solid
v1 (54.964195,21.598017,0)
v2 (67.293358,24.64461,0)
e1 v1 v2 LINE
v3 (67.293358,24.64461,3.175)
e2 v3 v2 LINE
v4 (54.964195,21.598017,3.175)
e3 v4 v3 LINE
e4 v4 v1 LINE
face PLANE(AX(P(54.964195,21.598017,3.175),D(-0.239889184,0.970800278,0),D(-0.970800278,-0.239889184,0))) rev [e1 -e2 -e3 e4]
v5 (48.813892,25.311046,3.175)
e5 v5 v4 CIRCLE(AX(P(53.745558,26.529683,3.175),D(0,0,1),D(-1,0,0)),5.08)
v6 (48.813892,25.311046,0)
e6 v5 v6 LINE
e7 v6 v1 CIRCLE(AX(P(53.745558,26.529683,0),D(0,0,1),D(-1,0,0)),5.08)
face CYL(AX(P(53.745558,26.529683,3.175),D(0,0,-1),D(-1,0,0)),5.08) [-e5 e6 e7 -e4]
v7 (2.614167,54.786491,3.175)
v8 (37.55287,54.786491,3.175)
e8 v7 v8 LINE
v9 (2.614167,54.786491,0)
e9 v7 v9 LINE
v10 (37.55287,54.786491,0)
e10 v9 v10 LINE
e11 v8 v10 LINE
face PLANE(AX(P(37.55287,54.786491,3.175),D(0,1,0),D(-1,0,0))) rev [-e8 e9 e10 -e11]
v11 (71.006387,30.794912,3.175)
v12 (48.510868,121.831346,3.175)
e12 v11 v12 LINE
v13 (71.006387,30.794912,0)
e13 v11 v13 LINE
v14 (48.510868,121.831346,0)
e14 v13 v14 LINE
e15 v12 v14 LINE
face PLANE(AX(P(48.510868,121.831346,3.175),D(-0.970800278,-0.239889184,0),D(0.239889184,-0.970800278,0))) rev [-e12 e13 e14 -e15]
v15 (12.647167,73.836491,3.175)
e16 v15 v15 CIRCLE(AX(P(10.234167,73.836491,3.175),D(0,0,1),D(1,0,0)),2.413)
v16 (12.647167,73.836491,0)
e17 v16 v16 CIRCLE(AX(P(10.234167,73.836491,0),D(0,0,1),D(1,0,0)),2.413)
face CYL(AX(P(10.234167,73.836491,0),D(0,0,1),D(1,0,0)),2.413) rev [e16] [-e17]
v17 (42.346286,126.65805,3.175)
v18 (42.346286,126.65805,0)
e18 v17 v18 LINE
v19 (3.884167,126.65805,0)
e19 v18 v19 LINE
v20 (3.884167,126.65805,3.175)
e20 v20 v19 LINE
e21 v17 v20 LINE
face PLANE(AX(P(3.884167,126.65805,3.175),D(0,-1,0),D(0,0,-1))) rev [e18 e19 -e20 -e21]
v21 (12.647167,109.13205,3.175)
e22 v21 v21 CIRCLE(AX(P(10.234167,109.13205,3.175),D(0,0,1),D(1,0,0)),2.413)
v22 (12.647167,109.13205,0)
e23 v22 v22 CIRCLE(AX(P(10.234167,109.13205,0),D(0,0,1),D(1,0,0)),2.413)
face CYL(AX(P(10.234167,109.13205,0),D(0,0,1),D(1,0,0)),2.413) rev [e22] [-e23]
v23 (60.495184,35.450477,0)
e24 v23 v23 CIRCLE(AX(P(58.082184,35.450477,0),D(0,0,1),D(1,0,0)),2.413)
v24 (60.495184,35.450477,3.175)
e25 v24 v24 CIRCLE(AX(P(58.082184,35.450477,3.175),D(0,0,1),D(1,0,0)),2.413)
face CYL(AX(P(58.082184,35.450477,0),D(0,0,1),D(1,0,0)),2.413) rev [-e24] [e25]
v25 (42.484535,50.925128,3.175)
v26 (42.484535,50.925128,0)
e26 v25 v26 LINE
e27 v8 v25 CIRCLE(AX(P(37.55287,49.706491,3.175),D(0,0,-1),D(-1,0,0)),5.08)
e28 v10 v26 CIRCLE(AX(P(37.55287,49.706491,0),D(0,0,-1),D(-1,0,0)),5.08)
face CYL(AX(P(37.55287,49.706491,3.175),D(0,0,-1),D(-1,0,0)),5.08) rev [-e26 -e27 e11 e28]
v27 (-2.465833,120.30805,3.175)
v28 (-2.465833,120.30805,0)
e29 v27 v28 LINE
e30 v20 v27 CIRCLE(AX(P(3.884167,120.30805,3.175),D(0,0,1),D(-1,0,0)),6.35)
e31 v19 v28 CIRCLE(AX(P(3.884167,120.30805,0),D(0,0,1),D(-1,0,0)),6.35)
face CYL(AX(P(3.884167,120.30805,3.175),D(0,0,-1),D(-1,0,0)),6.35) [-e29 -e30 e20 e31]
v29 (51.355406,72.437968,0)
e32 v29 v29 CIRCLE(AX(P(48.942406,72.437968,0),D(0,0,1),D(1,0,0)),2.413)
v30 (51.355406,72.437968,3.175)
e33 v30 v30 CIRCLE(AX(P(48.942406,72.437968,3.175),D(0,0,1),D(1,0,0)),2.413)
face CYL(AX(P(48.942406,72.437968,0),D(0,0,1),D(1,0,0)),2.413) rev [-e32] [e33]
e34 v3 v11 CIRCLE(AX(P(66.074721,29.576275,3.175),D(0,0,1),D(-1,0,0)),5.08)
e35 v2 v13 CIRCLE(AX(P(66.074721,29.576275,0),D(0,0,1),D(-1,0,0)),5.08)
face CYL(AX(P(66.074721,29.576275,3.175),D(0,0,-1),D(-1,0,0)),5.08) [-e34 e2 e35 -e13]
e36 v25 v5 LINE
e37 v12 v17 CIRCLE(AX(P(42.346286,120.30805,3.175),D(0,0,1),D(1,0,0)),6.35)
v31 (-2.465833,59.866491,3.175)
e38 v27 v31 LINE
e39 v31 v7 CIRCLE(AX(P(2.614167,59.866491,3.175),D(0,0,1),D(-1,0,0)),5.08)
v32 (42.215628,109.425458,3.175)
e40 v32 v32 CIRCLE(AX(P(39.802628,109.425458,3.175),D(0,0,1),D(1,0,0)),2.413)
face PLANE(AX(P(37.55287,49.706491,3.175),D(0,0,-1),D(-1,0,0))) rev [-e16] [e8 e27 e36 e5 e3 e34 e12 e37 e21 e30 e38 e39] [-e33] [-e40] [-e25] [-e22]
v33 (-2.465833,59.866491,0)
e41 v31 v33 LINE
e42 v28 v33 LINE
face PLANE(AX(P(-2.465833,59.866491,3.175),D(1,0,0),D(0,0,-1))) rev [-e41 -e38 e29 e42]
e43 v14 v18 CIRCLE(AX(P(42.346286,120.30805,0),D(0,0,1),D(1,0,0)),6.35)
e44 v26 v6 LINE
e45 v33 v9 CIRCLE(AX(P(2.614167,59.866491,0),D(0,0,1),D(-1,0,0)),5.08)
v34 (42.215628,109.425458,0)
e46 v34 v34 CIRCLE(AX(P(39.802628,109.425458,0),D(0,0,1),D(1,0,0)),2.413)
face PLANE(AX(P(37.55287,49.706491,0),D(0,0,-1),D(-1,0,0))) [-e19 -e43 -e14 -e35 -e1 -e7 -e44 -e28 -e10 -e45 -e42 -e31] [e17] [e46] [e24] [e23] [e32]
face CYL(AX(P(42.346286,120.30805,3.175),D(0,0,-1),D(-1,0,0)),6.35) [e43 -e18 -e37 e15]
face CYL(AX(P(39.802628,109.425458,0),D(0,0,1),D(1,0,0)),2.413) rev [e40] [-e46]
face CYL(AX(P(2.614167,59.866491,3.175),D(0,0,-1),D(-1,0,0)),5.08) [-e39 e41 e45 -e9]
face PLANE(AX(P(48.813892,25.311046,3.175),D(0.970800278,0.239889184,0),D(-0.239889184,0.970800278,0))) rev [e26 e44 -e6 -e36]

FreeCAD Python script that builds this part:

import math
import FreeCAD as App
import Part
import Sketcher
Q = App.Units.Quantity

doc = App.newDocument("Part")
body = doc.addObject("PartDesign::Body", "Body")

# Sketch on XY plane
sketch1 = body.newObject("Sketcher::SketchObject", "Sketch")
sketch1.AttachmentSupport = (doc.getObject("XY_Plane"), [""])
sketch1.MapMode = "FlatFace"
sketch1.addGeometry([
    Part.LineSegment(App.Vector(71, 31, 0), App.Vector(49, 122, 0)),  # 0
    Part.ArcOfCircle(Part.Circle(App.Vector(42, 120, 0), App.Vector(0, 0, 1), 6), math.radians(14), math.radians(90)),  # 1
    Part.LineSegment(App.Vector(42, 127, 0), App.Vector(4, 127, 0)),  # 2
    Part.ArcOfCircle(Part.Circle(App.Vector(4, 120, 0), App.Vector(0, 0, 1), 6), math.radians(90), math.radians(180)),  # 3
    Part.LineSegment(App.Vector(-2, 120, 0), App.Vector(-2, 60, 0)),  # 4
    Part.ArcOfCircle(Part.Circle(App.Vector(3, 60, 0), App.Vector(0, 0, 1), 5), math.radians(180), math.radians(270)),  # 5
    Part.LineSegment(App.Vector(3, 55, 0), App.Vector(38, 55, 0)),  # 6
    Part.ArcOfCircle(Part.Circle(App.Vector(38, 50, 0), App.Vector(0, 0, 1), 5), math.radians(14), math.radians(90)),  # 7
    Part.LineSegment(App.Vector(42, 51, 0), App.Vector(49, 25, 0)),  # 8
    Part.ArcOfCircle(Part.Circle(App.Vector(54, 27, 0), App.Vector(0, 0, 1), 5), math.radians(-166), math.radians(-76)),  # 9
    Part.LineSegment(App.Vector(55, 22, 0), App.Vector(67, 25, 0)),  # 10
    Part.ArcOfCircle(Part.Circle(App.Vector(66, 30, 0), App.Vector(0, 0, 1), 5), math.radians(-76), math.radians(14)),  # 11
], False)
sketch1.addConstraint([
    Sketcher.Constraint("Tangent", 0, 2, 1, 1),
    Sketcher.Constraint("Tangent", 1, 2, 2, 1),
    Sketcher.Constraint("Tangent", 2, 2, 3, 1),
    Sketcher.Constraint("Tangent", 3, 2, 4, 1),
    Sketcher.Constraint("Tangent", 4, 2, 5, 1),
    Sketcher.Constraint("Tangent", 5, 2, 6, 1),
    Sketcher.Constraint("Tangent", 6, 2, 7, 2),
    Sketcher.Constraint("Tangent", 7, 1, 8, 1),
    Sketcher.Constraint("Tangent", 8, 2, 9, 1),
    Sketcher.Constraint("Tangent", 9, 2, 10, 1),
    Sketcher.Constraint("Tangent", 10, 2, 11, 1),
    Sketcher.Constraint("Tangent", 11, 2, 0, 1),
    Sketcher.Constraint("Horizontal", 2),
    Sketcher.Constraint("Vertical", 4),
    Sketcher.Constraint("Horizontal", 6),
    Sketcher.Constraint("Equal", 1, 3),
    Sketcher.Constraint("Equal", 5, 7),
    Sketcher.Constraint("Equal", 7, 9),
    Sketcher.Constraint("Equal", 9, 11),
    Sketcher.Constraint("Parallel", 0, 8),
    Sketcher.Constraint("Perpendicular", 8, 10),
    Sketcher.Constraint("Radius", 5, Q("0.2 in")),
    Sketcher.Constraint("Radius", 1, Q("0.25 in")),
    Sketcher.Constraint("Distance", 10, Q("0.5 in")),
    Sketcher.Constraint("Angle", 0, Q("103.88 deg")),
    Sketcher.Constraint("DistanceX", 2, 2, 2, 1, Q("38.462119 mm")),
    Sketcher.Constraint("DistanceY", 4, 2, 4, 1, Q("60.441559 mm")),
    Sketcher.Constraint("DistanceY", -1, 1, 1, 3, Q("120.30805 mm")),
    Sketcher.Constraint("DistanceX", -1, 1, 7, 3, Q("37.55287 mm")),
    Sketcher.Constraint("DistanceX", -1, 1, 11, 3, Q("66.074721 mm")),
])
pad1 = body.newObject("PartDesign::Pad", "Pad")
pad1.Profile = sketch1
pad1.Length = Q("0.125 in")

# Sketch on XY plane
sketch2 = body.newObject("Sketcher::SketchObject", "Sketch001")
sketch2.AttachmentSupport = (doc.getObject("XY_Plane"), [""])
sketch2.MapMode = "FlatFace"
sketch2.AttachmentOffset = App.Placement(App.Vector(0, 0, 0.125 * 25.4), App.Rotation())
sketch2.addGeometry([
    Part.Circle(App.Vector(58.1, 35.5, 0), App.Vector(0, 0, 1), 2.4),  # 0
    Part.Circle(App.Vector(48.9, 72.4, 0), App.Vector(0, 0, 1), 2.4),  # 1
    Part.Circle(App.Vector(39.8, 109.4, 0), App.Vector(0, 0, 1), 2.4),  # 2
    Part.Circle(App.Vector(10.2, 109.1, 0), App.Vector(0, 0, 1), 2.4),  # 3
    Part.Circle(App.Vector(10.2, 73.8, 0), App.Vector(0, 0, 1), 2.4),  # 4
], False)
sketch2.addConstraint([
    Sketcher.Constraint("Equal", 0, 1),
    Sketcher.Constraint("Equal", 1, 2),
    Sketcher.Constraint("Equal", 2, 3),
    Sketcher.Constraint("Equal", 3, 4),
    Sketcher.Constraint("Vertical", 3, 3, 4, 3),
    Sketcher.Constraint("Diameter", 0, Q("0.19 in")),
    Sketcher.Constraint("DistanceX", -1, 1, 0, 3, Q("2.2867001 in")),
    Sketcher.Constraint("DistanceY", -1, 1, 2, 3, Q("109.425458 mm")),
    Sketcher.Constraint("DistanceY", -1, 1, 3, 3, Q("109.13205 mm")),
    Sketcher.Constraint("DistanceY", -1, 1, 4, 3, Q("73.836491 mm")),
    Sketcher.Constraint("DistanceY", 0, 3, 1, 3, Q("36.987491 mm")),
    Sketcher.Constraint("DistanceY", 1, 3, 2, 3, Q("36.987491 mm")),
    Sketcher.Constraint("DistanceX", 3, 3, 2, 3, Q("29.568461 mm")),
    Sketcher.Constraint("DistanceX", 3, 3, 1, 3, Q("38.708239 mm")),
    Sketcher.Constraint("DistanceX", -1, 1, 1, 3, Q("48.942406 mm")),
])
pocket1 = body.newObject("PartDesign::Pocket", "Pocket")
pocket1.Profile = sketch2
pocket1.Type = "ThroughAll"

doc.recompute()
